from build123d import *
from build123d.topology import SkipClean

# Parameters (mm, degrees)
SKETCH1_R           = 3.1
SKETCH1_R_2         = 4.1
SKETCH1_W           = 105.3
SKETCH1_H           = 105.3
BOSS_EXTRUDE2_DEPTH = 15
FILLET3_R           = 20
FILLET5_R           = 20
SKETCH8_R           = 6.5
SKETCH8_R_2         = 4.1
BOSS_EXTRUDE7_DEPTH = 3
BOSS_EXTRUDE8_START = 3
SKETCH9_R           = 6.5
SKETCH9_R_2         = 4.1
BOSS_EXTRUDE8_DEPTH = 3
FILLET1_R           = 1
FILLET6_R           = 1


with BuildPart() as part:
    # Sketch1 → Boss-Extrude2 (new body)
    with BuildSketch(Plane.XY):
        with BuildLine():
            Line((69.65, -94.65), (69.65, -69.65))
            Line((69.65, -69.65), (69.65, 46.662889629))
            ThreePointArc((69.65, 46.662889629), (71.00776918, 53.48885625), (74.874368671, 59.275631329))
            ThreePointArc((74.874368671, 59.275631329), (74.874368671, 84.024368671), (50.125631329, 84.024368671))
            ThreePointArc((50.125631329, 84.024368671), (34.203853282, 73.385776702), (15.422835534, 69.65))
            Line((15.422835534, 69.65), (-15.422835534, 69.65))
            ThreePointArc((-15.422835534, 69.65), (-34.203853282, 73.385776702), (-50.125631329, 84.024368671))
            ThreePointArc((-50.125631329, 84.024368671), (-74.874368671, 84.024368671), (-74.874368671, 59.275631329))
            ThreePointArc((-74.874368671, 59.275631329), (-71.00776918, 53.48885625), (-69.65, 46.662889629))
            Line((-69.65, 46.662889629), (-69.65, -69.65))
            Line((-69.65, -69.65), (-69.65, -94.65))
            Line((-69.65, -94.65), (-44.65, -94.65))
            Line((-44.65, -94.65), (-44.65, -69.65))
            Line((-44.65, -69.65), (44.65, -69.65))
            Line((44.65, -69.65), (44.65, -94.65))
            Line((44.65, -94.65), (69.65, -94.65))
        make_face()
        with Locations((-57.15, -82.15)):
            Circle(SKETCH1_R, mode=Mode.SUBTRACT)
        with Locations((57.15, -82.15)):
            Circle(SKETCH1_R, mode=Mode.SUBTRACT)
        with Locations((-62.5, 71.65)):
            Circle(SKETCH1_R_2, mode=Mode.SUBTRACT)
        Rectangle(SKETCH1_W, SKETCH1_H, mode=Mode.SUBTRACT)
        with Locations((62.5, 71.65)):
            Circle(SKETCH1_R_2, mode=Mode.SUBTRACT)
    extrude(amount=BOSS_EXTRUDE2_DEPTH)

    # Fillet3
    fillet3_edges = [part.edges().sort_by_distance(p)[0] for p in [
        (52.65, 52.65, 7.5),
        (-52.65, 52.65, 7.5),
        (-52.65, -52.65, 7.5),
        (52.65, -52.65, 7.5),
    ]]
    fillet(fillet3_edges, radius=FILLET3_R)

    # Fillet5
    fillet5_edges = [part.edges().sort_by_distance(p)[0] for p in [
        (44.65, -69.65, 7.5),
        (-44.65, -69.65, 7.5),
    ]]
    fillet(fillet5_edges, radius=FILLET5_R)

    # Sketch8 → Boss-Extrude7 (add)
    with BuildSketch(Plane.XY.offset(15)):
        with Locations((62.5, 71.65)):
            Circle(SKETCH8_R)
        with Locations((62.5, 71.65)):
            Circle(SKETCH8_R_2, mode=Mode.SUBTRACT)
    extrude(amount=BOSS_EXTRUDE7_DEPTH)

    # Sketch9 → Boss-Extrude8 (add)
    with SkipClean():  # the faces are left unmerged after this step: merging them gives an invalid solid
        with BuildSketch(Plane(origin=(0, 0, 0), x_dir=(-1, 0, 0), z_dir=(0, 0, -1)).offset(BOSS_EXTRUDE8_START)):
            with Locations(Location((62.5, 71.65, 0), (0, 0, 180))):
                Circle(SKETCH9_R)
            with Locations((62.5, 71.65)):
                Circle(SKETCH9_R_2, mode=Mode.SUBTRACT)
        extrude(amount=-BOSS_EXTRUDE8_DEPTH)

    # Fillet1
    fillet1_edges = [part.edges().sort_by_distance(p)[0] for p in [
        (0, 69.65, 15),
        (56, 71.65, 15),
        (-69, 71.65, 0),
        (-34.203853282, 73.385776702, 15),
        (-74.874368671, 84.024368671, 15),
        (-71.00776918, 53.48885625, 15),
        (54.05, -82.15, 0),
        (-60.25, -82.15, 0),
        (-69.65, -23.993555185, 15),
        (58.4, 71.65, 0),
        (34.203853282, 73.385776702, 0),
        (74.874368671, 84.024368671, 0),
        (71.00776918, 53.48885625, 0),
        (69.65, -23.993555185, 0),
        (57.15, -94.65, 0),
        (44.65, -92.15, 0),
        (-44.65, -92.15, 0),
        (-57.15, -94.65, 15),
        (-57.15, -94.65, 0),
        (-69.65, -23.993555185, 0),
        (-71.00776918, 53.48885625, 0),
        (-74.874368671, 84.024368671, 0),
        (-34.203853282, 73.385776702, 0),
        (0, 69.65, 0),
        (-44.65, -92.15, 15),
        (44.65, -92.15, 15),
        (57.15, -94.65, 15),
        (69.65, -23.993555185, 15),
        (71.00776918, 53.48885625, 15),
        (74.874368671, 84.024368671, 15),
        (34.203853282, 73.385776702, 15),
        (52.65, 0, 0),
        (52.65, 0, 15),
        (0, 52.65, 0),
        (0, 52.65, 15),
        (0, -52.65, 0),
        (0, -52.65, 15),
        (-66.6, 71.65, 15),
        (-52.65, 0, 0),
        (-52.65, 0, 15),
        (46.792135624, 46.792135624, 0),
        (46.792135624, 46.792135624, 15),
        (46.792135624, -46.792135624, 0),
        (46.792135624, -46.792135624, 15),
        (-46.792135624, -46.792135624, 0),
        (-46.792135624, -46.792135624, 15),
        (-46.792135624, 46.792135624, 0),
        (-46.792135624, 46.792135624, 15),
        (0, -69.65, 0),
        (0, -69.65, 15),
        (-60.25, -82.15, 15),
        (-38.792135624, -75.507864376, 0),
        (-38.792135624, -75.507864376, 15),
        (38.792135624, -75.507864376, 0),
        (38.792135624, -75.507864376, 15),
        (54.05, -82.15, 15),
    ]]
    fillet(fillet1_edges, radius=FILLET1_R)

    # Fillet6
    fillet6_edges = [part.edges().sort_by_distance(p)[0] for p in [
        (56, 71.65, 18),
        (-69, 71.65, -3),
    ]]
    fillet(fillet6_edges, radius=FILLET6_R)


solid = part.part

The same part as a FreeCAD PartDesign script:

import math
import FreeCAD as App
import Part
import Sketcher

V = App.Vector
Q = App.Units.Quantity


def edges_at(feature, points):
    """Names of the edges that pass closest to the given points."""
    edges = feature.Shape.Edges
    near = lambda p: min(range(len(edges)), key=lambda i: edges[i].distToShape(Part.Vertex(*p))[0])
    return sorted({f"Edge{near(p) + 1}" for p in points})


def add_polygon(sketch, points):
    """Adds a closed chain of lines whose ends are joined by coincident constraints."""
    first, n = sketch.GeometryCount, len(points)
    for a, b in zip(points, points[1:] + points[:1]):
        sketch.addGeometry(Part.LineSegment(App.Vector(*a, 0), App.Vector(*b, 0)), False)
    for i in range(n):
        sketch.addConstraint(Sketcher.Constraint("Coincident", first + i, 2, first + (i + 1) % n, 1))

doc = App.newDocument("Part")
body = doc.addObject("PartDesign::Body", "Body")

sketch1 = doc.addObject("Sketcher::SketchObject", "Sketch")
body.addObject(sketch1)
sketch1.AttachmentSupport = (doc.XY_Plane, [""])
sketch1.MapMode = "FlatFace"
sketch1.addGeometry(Part.LineSegment(V(69.65, -94.65, 0), V(69.65, 46.66289, 0)), False)
sketch1.addGeometry(Part.ArcOfCircle(Part.Circle(V(87.48711, 46.66289, 0), V(0, 0, 1), 17.83711), math.radians(135), math.radians(180)), False)
sketch1.addGeometry(Part.ArcOfCircle(Part.Circle(V(62.5, 71.65, 0), V(0, 0, 1), 17.5), math.radians(-45), math.radians(135)), False)
sketch1.addGeometry(Part.ArcOfCircle(Part.Circle(V(15.422836, 118.727164, 0), V(0, 0, 1), 49.077164), math.radians(-90), math.radians(-45)), False)
sketch1.addGeometry(Part.LineSegment(V(15.422836, 69.65, 0), V(-15.422836, 69.65, 0)), False)
sketch1.addGeometry(Part.ArcOfCircle(Part.Circle(V(-15.422836, 118.727164, 0), V(0, 0, 1), 49.077164), math.radians(-135), math.radians(-90)), False)
sketch1.addGeometry(Part.ArcOfCircle(Part.Circle(V(-62.5, 71.65, 0), V(0, 0, 1), 17.5), math.radians(45), math.radians(225)), False)
sketch1.addGeometry(Part.ArcOfCircle(Part.Circle(V(-87.48711, 46.66289, 0), V(0, 0, 1), 17.83711), math.radians(0), math.radians(45)), False)
sketch1.addGeometry(Part.LineSegment(V(-69.65, 46.66289, 0), V(-69.65, -94.65, 0)), False)
sketch1.addGeometry(Part.LineSegment(V(-69.65, -94.65, 0), V(-44.65, -94.65, 0)), False)
sketch1.addGeometry(Part.LineSegment(V(-44.65, -94.65, 0), V(-44.65, -69.65, 0)), False)
sketch1.addGeometry(Part.LineSegment(V(-44.65, -69.65, 0), V(44.65, -69.65, 0)), False)
sketch1.addGeometry(Part.LineSegment(V(44.65, -69.65, 0), V(44.65, -94.65, 0)), False)
sketch1.addGeometry(Part.LineSegment(V(44.65, -94.65, 0), V(69.65, -94.65, 0)), False)
sketch1.addGeometry(Part.Circle(V(-57.15, -82.15, 0), V(0, 0, 1), 3.1), False)
sketch1.addGeometry(Part.Circle(V(57.15, -82.15, 0), V(0, 0, 1), 3.1), False)
sketch1.addGeometry(Part.Circle(V(-62.5, 71.65, 0), V(0, 0, 1), 4.1), False)
add_polygon(sketch1, [(52.65, -52.65), (-52.65, -52.65), (-52.65, 52.65), (52.65, 52.65)])
sketch1.addGeometry(Part.Circle(V(62.5, 71.65, 0), V(0, 0, 1), 4.1), False)
sketch1.addConstraint([
    Sketcher.Constraint("Tangent", 0, 2, 1, 2),
    Sketcher.Constraint("Tangent", 1, 1, 2, 1),
    Sketcher.Constraint("Tangent", 2, 2, 3, 2),
    Sketcher.Constraint("Tangent", 3, 1, 4, 1),
    Sketcher.Constraint("Tangent", 4, 2, 5, 2),
    Sketcher.Constraint("Tangent", 5, 1, 6, 1),
    Sketcher.Constraint("Tangent", 6, 2, 7, 2),
    Sketcher.Constraint("Tangent", 7, 1, 8, 1),
    Sketcher.Constraint("Coincident", 8, 2, 9, 1),
    Sketcher.Constraint("Coincident", 9, 2, 10, 1),
    Sketcher.Constraint("Coincident", 10, 2, 11, 1),
    Sketcher.Constraint("Coincident", 11, 2, 12, 1),
    Sketcher.Constraint("Coincident", 12, 2, 13, 1),
    Sketcher.Constraint("Coincident", 13, 2, 0, 1),
    Sketcher.Constraint("Vertical", 0),
    Sketcher.Constraint("Horizontal", 4),
    Sketcher.Constraint("Vertical", 8),
    Sketcher.Constraint("Horizontal", 9),
    Sketcher.Constraint("Vertical", 10),
    Sketcher.Constraint("Horizontal", 11),
    Sketcher.Constraint("Vertical", 12),
    Sketcher.Constraint("Horizontal", 13),
    Sketcher.Constraint("Horizontal", 17),
    Sketcher.Constraint("Vertical", 18),
    Sketcher.Constraint("Horizontal", 19),
    Sketcher.Constraint("Vertical", 20),
    Sketcher.Constraint("Coincident", 16, 3, 6, 3),
    Sketcher.Constraint("Coincident", 21, 3, 2, 3),
    Sketcher.Constraint("Equal", 3, 5),
    Sketcher.Constraint("Equal", 2, 6),
    Sketcher.Constraint("Equal", 1, 7),
    Sketcher.Constraint("Equal", 14, 15),
    Sketcher.Constraint("Equal", 16, 21),
    Sketcher.Constraint("Symmetric", 17, 2, 19, 2, -1, 1),
    Sketcher.Constraint("Symmetric", 2, 3, 6, 3, -2),
    Sketcher.Constraint("Symmetric", 14, 3, 15, 3, -2),
    Sketcher.Constraint("Symmetric", 9, 2, 12, 2, -2),
    Sketcher.Constraint("Horizontal", 1, 3, 7, 3),
    Sketcher.Constraint("Equal", 13, 10),
    Sketcher.Constraint("Equal", 19, 18),
    Sketcher.Constraint("Diameter", 14, Q("6.2 mm")),
    Sketcher.Constraint("Diameter", 16, Q("8.2 mm")),
    Sketcher.Constraint("Radius", 2, Q("17.5 mm")),
    Sketcher.Constraint("DistanceX", 9, 1, 9, 2, Q("25 mm")),
    Sketcher.Constraint("DistanceX", 11, 1, 11, 2, Q("89.3 mm")),
    Sketcher.Constraint("DistanceX", 17, 2, 17, 1, Q("105.3 mm")),
    Sketcher.Constraint("DistanceX", 6, 3, 2, 3, Q("125 mm")),
    Sketcher.Constraint("DistanceY", 3, 1, 2, 3, Q("2 mm")),
    Sketcher.Constraint("DistanceY", 10, 2, 17, 2, Q("17 mm")),
    Sketcher.Constraint("DistanceY", 18, 2, 6, 3, Q("19 mm")),
    Sketcher.Constraint("DistanceY", 14, 3, 6, 3, Q("153.8 mm")),
    Sketcher.Constraint("DistanceX", 14, 3, 15, 3, Q("114.3 mm")),
    Sketcher.Constraint("Radius", 1, Q("17.83711 mm")),
    Sketcher.Constraint("Radius", 3, Q("49.077164 mm")),
])
pad1 = doc.addObject("PartDesign::Pad", "Pad")
body.addObject(pad1)
pad1.Profile = sketch1
pad1.Length = 15
doc.recompute()

fillet = doc.addObject("PartDesign::Fillet", "Fillet")
body.addObject(fillet)
fillet.Base = (pad1, edges_at(pad1, [
    (52.65, 52.65, 7.5),
    (-52.65, 52.65, 7.5),
    (-52.65, -52.65, 7.5),
    (52.65, -52.65, 7.5),
]))
fillet.Radius = 20
doc.recompute()

fillet2 = doc.addObject("PartDesign::Fillet", "Fillet001")
body.addObject(fillet2)
fillet2.Base = (fillet, edges_at(fillet, [(44.65, -69.65, 7.5), (-44.65, -69.65, 7.5)]))
fillet2.Radius = 20

sketch2 = doc.addObject("Sketcher::SketchObject", "Sketch001")
body.addObject(sketch2)
sketch2.AttachmentSupport = (doc.XY_Plane, [""])
sketch2.MapMode = "FlatFace"
sketch2.AttachmentOffset = App.Placement(V(0, 0, 15), App.Rotation())
sketch2.addGeometry([
    Part.Circle(V(62.5, 71.65, 0), V(0, 0, 1), 6.5),
    Part.Circle(V(62.5, 71.65, 0), V(0, 0, 1), 4.1),
], False)
sketch2.addConstraint([
    Sketcher.Constraint("Coincident", 1, 3, 0, 3),
    Sketcher.Constraint("Diameter", 0, Q("13 mm")),
    Sketcher.Constraint("Diameter", 1, Q("8.2 mm")),
    Sketcher.Constraint("DistanceX", -1, 1, 0, 3, Q("62.5 mm")),
    Sketcher.Constraint("DistanceY", -1, 1, 0, 3, Q("71.65 mm")),
])
pad2 = doc.addObject("PartDesign::Pad", "Pad001")
body.addObject(pad2)
pad2.Profile = sketch2
pad2.Length = 3

sketch3 = doc.addObject("Sketcher::SketchObject", "Sketch002")
body.addObject(sketch3)
sketch3.AttachmentSupport = (doc.XY_Plane, [""])
sketch3.MapMode = "FlatFace"
sketch3.AttachmentOffset = App.Placement(V(0, 0, -3), App.Rotation())
sketch3.addGeometry([
    Part.Circle(V(-62.5, 71.65, 0), V(0, 0, 1), 6.5),
    Part.Circle(V(-62.5, 71.65, 0), V(0, 0, 1), 4.1),
], False)
sketch3.addConstraint([
    Sketcher.Constraint("Coincident", 1, 3, 0, 3),
    Sketcher.Constraint("Diameter", 0, Q("13 mm")),
    Sketcher.Constraint("Diameter", 1, Q("8.2 mm")),
    Sketcher.Constraint("DistanceX", 0, 3, -1, 1, Q("62.5 mm")),
    Sketcher.Constraint("DistanceY", -1, 1, 0, 3, Q("71.65 mm")),
])
pad3 = doc.addObject("PartDesign::Pad", "Pad002")
body.addObject(pad3)
pad3.Profile = sketch3
pad3.Length = 3
doc.recompute()

fillet3 = doc.addObject("PartDesign::Fillet", "Fillet002")
body.addObject(fillet3)
fillet3.Base = (pad3, edges_at(pad3, [
    (0, 69.65, 15),
    (56, 71.65, 15),
    (-69, 71.65, 0),
    (-34.204, 73.386, 15),
    (-74.874, 84.024, 15),
    (-71.008, 53.489, 15),
    (54.05, -82.15, 0),
    (-60.25, -82.15, 0),
    (-69.65, -23.994, 15),
    (58.4, 71.65, 0),
    (34.204, 73.386, 0),
    (74.874, 84.024, 0),
    (71.008, 53.489, 0),
    (69.65, -23.994, 0),
    (57.15, -94.65, 0),
    (44.65, -92.15, 0),
    (-44.65, -92.15, 0),
    (-57.15, -94.65, 15),
    (-57.15, -94.65, 0),
    (-69.65, -23.994, 0),
    (-71.008, 53.489, 0),
    (-74.874, 84.024, 0),
    (-34.204, 73.386, 0),
    (0, 69.65, 0),
    (-44.65, -92.15, 15),
    (44.65, -92.15, 15),
    (57.15, -94.65, 15),
    (69.65, -23.994, 15),
    (71.008, 53.489, 15),
    (74.874, 84.024, 15),
    (34.204, 73.386, 15),
    (52.65, 0, 0),
    (52.65, 0, 15),
    (0, 52.65, 0),
    (0, 52.65, 15),
    (0, -52.65, 0),
    (0, -52.65, 15),
    (-66.6, 71.65, 15),
    (-52.65, 0, 0),
    (-52.65, 0, 15),
    (46.792, 46.792, 0),
    (46.792, 46.792, 15),
    (46.792, -46.792, 0),
    (46.792, -46.792, 15),
    (-46.792, -46.792, 0),
    (-46.792, -46.792, 15),
    (-46.792, 46.792, 0),
    (-46.792, 46.792, 15),
    (0, -69.65, 0),
    (0, -69.65, 15),
    (-60.25, -82.15, 15),
    (-38.792, -75.508, 0),
    (-38.792, -75.508, 15),
    (38.792, -75.508, 0),
    (38.792, -75.508, 15),
    (54.05, -82.15, 15),
]))
fillet3.Radius = 1
doc.recompute()

fillet4 = doc.addObject("PartDesign::Fillet", "Fillet003")
body.addObject(fillet4)
fillet4.Base = (fillet3, edges_at(fillet3, [(56, 71.65, 18), (-69, 71.65, -3)]))
fillet4.Radius = 1

doc.recompute()
